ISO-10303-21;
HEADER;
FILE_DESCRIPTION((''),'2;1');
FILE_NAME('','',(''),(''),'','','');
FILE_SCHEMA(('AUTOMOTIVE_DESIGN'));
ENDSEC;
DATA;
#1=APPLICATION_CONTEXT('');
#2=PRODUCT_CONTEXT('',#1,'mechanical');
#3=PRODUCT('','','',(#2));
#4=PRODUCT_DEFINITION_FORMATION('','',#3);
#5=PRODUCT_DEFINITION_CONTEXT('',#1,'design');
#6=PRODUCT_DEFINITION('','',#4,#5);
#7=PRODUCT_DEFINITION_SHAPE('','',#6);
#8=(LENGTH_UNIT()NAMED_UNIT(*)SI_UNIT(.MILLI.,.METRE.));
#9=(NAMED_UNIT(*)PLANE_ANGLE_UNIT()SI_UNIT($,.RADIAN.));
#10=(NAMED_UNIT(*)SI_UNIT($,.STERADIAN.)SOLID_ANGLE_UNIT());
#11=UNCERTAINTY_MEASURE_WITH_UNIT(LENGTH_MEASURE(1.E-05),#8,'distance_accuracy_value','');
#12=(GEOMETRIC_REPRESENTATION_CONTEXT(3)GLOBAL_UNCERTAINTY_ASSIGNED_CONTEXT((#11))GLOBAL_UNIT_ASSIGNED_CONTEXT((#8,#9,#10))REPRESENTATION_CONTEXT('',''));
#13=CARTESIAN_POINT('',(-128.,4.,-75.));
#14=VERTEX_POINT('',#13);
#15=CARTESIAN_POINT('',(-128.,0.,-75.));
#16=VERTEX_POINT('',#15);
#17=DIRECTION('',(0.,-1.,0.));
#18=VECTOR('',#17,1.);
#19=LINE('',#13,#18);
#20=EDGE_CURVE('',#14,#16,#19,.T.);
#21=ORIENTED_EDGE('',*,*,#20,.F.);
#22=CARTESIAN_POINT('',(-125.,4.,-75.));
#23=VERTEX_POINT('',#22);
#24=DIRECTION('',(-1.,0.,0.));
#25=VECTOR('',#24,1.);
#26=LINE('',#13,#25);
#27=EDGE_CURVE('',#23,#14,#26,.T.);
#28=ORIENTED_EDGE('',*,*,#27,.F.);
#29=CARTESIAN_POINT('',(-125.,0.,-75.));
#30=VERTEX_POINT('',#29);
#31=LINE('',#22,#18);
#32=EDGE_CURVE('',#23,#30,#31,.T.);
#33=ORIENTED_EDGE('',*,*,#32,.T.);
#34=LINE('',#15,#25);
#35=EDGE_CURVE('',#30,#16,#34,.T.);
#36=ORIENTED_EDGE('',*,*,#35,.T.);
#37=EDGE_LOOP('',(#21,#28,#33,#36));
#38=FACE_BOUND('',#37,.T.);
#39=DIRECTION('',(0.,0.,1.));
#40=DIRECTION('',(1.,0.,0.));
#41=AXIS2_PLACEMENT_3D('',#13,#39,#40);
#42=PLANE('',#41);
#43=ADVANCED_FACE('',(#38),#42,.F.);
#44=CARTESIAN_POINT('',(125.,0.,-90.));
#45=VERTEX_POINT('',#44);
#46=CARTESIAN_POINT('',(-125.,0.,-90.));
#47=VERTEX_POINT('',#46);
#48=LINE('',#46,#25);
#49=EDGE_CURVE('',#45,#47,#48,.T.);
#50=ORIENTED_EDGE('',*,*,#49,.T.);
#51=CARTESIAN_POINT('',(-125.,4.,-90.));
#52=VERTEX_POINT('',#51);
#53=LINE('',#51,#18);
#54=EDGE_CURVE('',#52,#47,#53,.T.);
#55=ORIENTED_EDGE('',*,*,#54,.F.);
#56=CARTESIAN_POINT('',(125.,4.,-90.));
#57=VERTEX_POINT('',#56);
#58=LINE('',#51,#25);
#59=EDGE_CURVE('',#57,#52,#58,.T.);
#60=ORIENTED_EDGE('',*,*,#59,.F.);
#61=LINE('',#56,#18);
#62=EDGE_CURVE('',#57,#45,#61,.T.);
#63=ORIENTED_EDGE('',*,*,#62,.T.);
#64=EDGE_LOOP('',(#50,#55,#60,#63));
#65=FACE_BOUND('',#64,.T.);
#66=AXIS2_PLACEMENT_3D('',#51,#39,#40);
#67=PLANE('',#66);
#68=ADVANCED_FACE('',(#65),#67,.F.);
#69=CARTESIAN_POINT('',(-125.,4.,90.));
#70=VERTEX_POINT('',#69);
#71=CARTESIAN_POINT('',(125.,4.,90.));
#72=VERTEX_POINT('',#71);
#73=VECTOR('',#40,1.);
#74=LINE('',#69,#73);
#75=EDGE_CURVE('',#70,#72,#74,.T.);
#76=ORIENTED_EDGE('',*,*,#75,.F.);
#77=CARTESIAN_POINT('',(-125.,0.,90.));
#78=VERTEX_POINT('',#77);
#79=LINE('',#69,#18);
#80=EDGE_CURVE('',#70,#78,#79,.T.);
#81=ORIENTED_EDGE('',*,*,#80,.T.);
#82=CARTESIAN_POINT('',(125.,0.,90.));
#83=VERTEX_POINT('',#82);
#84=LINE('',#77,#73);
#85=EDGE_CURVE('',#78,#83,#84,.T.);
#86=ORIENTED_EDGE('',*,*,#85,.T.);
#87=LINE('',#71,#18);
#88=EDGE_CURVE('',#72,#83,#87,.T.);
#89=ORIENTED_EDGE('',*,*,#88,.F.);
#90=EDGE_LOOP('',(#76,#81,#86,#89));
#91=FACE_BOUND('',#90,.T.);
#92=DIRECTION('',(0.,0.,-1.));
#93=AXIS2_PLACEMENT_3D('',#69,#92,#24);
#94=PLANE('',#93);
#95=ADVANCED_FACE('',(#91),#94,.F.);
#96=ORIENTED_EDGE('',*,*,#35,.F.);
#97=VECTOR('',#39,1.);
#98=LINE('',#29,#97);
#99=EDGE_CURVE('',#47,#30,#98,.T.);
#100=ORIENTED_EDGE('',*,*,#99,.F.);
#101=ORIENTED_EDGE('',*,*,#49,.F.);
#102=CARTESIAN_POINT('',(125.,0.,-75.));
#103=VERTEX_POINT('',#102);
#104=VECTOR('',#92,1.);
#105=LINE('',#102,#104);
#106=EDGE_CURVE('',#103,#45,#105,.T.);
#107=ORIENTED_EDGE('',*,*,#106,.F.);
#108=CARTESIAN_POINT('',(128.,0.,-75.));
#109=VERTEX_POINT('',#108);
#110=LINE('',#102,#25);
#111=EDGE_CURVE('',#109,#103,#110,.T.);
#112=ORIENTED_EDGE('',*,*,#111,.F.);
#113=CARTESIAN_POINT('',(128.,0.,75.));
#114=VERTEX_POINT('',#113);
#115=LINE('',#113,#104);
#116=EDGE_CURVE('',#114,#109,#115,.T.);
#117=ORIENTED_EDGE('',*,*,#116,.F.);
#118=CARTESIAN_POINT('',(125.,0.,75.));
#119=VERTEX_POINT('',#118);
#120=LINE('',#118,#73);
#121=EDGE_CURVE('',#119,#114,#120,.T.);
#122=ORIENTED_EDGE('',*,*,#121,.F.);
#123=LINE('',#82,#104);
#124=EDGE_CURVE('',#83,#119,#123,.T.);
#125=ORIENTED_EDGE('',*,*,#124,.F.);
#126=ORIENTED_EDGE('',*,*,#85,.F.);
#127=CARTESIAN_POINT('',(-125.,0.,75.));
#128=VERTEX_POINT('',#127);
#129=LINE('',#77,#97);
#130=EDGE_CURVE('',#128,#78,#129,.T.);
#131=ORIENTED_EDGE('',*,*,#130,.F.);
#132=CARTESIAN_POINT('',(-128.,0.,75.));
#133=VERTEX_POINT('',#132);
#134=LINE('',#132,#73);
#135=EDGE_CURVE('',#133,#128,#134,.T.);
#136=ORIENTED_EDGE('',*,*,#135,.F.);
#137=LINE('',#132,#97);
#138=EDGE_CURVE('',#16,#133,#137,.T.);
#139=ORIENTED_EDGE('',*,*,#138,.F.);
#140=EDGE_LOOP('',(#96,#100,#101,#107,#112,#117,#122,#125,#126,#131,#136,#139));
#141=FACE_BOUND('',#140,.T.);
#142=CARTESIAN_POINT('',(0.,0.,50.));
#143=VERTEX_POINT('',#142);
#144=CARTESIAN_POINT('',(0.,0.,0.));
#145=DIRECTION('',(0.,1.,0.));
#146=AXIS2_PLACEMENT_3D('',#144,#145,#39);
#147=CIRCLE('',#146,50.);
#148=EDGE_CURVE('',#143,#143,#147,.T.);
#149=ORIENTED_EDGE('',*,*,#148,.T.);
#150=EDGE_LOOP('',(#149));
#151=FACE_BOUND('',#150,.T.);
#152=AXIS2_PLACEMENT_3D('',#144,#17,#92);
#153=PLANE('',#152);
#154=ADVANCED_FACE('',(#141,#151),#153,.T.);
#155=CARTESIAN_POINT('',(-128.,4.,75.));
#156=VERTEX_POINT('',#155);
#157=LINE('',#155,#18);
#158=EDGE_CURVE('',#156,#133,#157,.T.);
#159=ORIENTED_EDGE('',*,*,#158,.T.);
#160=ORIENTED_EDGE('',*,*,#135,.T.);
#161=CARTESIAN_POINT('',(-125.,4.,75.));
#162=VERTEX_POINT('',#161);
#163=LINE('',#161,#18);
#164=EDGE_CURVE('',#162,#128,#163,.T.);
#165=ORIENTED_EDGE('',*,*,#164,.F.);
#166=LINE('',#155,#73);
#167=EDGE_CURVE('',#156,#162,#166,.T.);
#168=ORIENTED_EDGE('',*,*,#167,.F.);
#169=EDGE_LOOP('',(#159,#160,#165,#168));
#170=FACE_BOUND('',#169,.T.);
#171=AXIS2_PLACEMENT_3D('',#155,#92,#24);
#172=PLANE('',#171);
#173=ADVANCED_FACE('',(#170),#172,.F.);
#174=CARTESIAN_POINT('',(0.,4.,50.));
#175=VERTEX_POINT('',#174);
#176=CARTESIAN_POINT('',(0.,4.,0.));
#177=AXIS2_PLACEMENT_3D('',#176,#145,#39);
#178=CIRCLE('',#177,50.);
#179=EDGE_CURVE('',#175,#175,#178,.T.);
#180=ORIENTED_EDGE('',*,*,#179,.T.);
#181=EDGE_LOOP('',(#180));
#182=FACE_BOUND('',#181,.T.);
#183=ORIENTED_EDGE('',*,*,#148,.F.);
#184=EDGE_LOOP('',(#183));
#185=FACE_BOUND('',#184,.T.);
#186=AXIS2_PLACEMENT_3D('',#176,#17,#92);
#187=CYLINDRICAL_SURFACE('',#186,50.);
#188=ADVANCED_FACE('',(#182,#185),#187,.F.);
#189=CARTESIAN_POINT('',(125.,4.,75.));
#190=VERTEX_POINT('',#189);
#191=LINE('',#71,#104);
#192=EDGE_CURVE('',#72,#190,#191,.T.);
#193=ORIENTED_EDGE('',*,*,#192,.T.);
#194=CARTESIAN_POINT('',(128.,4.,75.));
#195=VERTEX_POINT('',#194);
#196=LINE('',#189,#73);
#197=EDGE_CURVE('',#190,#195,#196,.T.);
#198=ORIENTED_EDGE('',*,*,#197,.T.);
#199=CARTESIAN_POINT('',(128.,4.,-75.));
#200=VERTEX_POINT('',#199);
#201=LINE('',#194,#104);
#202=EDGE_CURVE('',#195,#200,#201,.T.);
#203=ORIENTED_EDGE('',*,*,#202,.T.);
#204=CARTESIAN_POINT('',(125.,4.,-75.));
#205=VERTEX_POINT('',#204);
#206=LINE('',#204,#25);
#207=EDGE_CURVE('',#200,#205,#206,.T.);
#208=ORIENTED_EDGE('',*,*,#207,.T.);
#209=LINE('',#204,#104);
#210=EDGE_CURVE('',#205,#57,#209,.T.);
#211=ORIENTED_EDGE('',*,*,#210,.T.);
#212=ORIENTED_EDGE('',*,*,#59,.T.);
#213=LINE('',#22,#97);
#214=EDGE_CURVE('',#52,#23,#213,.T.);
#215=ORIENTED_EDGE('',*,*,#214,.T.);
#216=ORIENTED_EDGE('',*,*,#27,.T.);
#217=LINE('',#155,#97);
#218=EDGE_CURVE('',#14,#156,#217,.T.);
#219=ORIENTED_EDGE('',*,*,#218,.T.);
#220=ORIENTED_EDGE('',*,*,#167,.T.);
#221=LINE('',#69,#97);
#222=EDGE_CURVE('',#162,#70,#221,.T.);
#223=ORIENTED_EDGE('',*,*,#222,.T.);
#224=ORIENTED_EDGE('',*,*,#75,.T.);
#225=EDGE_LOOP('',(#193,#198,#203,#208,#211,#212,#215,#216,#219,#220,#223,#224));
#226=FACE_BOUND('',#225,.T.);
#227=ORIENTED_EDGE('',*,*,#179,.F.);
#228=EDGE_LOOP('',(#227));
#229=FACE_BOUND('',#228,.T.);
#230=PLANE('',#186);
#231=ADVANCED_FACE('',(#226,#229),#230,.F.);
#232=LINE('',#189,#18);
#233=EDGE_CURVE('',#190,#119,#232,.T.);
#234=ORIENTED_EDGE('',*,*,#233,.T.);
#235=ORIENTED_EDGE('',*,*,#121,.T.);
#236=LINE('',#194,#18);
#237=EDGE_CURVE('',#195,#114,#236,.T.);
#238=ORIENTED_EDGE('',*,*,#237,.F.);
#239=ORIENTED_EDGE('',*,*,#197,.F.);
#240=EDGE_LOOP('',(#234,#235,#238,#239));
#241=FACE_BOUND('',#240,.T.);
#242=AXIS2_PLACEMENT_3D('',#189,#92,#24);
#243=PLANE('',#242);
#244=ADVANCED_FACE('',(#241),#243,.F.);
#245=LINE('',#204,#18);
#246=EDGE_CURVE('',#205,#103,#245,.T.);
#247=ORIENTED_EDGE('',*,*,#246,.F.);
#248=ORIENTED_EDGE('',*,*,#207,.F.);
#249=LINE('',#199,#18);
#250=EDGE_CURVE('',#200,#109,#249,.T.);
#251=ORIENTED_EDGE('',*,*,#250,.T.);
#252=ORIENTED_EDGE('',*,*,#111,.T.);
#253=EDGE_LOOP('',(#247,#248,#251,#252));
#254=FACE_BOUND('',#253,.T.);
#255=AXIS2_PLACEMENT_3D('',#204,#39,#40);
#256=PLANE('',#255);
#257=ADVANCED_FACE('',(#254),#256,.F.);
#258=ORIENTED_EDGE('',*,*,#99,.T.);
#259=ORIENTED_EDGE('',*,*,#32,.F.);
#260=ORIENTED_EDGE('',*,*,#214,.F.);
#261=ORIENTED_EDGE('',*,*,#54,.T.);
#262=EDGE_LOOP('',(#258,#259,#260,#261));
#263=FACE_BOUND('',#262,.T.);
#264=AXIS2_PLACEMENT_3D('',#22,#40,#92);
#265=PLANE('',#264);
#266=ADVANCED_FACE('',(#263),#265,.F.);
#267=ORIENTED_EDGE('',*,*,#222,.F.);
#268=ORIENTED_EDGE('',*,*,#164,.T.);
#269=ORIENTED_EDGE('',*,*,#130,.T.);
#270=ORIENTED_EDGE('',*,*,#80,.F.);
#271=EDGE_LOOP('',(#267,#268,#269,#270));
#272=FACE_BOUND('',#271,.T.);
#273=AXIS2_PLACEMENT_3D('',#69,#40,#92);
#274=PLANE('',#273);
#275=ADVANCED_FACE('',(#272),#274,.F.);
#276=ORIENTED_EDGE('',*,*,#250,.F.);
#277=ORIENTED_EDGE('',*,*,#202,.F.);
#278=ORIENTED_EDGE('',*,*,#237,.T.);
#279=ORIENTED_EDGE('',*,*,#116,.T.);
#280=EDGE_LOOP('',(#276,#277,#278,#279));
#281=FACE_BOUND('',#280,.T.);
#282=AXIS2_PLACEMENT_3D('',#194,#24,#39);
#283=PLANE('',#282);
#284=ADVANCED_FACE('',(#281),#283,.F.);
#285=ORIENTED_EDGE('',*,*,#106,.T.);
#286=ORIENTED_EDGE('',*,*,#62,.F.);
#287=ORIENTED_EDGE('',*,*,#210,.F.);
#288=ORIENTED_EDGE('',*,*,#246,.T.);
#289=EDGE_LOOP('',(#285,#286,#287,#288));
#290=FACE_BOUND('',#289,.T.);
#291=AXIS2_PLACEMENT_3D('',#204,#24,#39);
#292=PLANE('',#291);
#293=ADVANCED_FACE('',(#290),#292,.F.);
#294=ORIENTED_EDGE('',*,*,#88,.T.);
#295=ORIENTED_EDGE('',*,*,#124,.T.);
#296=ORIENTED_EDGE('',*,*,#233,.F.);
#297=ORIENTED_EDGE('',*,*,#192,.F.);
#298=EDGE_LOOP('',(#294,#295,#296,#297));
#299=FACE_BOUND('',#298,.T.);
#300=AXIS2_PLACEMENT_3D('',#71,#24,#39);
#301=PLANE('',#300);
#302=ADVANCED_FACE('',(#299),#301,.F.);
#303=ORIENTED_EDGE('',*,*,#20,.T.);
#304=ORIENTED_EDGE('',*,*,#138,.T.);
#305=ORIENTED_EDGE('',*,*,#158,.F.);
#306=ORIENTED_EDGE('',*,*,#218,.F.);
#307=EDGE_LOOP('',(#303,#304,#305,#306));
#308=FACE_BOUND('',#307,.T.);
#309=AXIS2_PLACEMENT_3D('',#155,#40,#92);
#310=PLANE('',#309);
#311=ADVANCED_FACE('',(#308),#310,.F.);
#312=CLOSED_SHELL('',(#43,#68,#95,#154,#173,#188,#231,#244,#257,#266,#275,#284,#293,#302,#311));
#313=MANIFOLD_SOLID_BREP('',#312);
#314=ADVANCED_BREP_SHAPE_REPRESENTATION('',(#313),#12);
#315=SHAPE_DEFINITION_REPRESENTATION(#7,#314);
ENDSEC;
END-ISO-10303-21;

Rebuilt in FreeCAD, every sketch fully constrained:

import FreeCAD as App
import Part
import Sketcher
Q = App.Units.Quantity


def add_polygon(sketch, points):
    """Adds a closed chain of lines whose ends are joined by coincident constraints."""
    first, n = sketch.GeometryCount, len(points)
    for a, b in zip(points, points[1:] + points[:1]):
        sketch.addGeometry(Part.LineSegment(App.Vector(*a, 0), App.Vector(*b, 0)), False)
    for i in range(n):
        sketch.addConstraint(Sketcher.Constraint("Coincident", first + i, 2, first + (i + 1) % n, 1))

doc = App.newDocument("Part")
body = doc.addObject("PartDesign::Body", "Body")

sketch1 = body.newObject("Sketcher::SketchObject", "Sketch")
sketch1.AttachmentSupport = (doc.getObject("XZ_Plane"), [""])
sketch1.MapMode = "FlatFace"
add_polygon(sketch1, [(-125, -90), (-125, -75), (-128, -75), (-128, 75), (-125, 75), (-125, 90), (125, 90), (125, 75), (128, 75), (128, -75), (125, -75), (125, -90)])
sketch1.addGeometry(Part.Circle(App.Vector(0, 0, 0), App.Vector(0, 0, 1), 50), False)
sketch1.addConstraint(Sketcher.Constraint("Vertical", 0))
sketch1.addConstraint(Sketcher.Constraint("Horizontal", 1))
sketch1.addConstraint(Sketcher.Constraint("Vertical", 2))
sketch1.addConstraint(Sketcher.Constraint("Horizontal", 3))
sketch1.addConstraint(Sketcher.Constraint("Vertical", 4))
sketch1.addConstraint(Sketcher.Constraint("Horizontal", 5))
sketch1.addConstraint(Sketcher.Constraint("Vertical", 6))
sketch1.addConstraint(Sketcher.Constraint("Horizontal", 7))
sketch1.addConstraint(Sketcher.Constraint("Vertical", 8))
sketch1.addConstraint(Sketcher.Constraint("Horizontal", 9))
sketch1.addConstraint(Sketcher.Constraint("Vertical", 10))
sketch1.addConstraint(Sketcher.Constraint("Horizontal", 11))
sketch1.addConstraint(Sketcher.Constraint("Coincident", 12, 3, -1, 1))
sketch1.addConstraint(Sketcher.Constraint("Symmetric", 0, 2, 6, 2, -1, 1))
sketch1.addConstraint(Sketcher.Constraint("Symmetric", 2, 2, 8, 2, -1, 1))
sketch1.addConstraint(Sketcher.Constraint("Symmetric", 4, 2, 10, 2, -1, 1))
sketch1.addConstraint(Sketcher.Constraint("Symmetric", 3, 2, 6, 2, -2))
sketch1.addConstraint(Sketcher.Constraint("Diameter", 12, Q("100 mm")))
sketch1.addConstraint(Sketcher.Constraint("DistanceX", 1, 2, 1, 1, Q("3 mm")))
sketch1.addConstraint(Sketcher.Constraint("DistanceX", 5, 1, 5, 2, Q("250 mm")))
sketch1.addConstraint(Sketcher.Constraint("DistanceY", 0, 1, 0, 2, Q("15 mm")))
sketch1.addConstraint(Sketcher.Constraint("DistanceY", 2, 1, 2, 2, Q("150 mm")))
pad1 = body.newObject("PartDesign::Pad", "Pad")
pad1.Profile = sketch1
pad1.Length = 4
pad1.Reversed = True

doc.recompute()
